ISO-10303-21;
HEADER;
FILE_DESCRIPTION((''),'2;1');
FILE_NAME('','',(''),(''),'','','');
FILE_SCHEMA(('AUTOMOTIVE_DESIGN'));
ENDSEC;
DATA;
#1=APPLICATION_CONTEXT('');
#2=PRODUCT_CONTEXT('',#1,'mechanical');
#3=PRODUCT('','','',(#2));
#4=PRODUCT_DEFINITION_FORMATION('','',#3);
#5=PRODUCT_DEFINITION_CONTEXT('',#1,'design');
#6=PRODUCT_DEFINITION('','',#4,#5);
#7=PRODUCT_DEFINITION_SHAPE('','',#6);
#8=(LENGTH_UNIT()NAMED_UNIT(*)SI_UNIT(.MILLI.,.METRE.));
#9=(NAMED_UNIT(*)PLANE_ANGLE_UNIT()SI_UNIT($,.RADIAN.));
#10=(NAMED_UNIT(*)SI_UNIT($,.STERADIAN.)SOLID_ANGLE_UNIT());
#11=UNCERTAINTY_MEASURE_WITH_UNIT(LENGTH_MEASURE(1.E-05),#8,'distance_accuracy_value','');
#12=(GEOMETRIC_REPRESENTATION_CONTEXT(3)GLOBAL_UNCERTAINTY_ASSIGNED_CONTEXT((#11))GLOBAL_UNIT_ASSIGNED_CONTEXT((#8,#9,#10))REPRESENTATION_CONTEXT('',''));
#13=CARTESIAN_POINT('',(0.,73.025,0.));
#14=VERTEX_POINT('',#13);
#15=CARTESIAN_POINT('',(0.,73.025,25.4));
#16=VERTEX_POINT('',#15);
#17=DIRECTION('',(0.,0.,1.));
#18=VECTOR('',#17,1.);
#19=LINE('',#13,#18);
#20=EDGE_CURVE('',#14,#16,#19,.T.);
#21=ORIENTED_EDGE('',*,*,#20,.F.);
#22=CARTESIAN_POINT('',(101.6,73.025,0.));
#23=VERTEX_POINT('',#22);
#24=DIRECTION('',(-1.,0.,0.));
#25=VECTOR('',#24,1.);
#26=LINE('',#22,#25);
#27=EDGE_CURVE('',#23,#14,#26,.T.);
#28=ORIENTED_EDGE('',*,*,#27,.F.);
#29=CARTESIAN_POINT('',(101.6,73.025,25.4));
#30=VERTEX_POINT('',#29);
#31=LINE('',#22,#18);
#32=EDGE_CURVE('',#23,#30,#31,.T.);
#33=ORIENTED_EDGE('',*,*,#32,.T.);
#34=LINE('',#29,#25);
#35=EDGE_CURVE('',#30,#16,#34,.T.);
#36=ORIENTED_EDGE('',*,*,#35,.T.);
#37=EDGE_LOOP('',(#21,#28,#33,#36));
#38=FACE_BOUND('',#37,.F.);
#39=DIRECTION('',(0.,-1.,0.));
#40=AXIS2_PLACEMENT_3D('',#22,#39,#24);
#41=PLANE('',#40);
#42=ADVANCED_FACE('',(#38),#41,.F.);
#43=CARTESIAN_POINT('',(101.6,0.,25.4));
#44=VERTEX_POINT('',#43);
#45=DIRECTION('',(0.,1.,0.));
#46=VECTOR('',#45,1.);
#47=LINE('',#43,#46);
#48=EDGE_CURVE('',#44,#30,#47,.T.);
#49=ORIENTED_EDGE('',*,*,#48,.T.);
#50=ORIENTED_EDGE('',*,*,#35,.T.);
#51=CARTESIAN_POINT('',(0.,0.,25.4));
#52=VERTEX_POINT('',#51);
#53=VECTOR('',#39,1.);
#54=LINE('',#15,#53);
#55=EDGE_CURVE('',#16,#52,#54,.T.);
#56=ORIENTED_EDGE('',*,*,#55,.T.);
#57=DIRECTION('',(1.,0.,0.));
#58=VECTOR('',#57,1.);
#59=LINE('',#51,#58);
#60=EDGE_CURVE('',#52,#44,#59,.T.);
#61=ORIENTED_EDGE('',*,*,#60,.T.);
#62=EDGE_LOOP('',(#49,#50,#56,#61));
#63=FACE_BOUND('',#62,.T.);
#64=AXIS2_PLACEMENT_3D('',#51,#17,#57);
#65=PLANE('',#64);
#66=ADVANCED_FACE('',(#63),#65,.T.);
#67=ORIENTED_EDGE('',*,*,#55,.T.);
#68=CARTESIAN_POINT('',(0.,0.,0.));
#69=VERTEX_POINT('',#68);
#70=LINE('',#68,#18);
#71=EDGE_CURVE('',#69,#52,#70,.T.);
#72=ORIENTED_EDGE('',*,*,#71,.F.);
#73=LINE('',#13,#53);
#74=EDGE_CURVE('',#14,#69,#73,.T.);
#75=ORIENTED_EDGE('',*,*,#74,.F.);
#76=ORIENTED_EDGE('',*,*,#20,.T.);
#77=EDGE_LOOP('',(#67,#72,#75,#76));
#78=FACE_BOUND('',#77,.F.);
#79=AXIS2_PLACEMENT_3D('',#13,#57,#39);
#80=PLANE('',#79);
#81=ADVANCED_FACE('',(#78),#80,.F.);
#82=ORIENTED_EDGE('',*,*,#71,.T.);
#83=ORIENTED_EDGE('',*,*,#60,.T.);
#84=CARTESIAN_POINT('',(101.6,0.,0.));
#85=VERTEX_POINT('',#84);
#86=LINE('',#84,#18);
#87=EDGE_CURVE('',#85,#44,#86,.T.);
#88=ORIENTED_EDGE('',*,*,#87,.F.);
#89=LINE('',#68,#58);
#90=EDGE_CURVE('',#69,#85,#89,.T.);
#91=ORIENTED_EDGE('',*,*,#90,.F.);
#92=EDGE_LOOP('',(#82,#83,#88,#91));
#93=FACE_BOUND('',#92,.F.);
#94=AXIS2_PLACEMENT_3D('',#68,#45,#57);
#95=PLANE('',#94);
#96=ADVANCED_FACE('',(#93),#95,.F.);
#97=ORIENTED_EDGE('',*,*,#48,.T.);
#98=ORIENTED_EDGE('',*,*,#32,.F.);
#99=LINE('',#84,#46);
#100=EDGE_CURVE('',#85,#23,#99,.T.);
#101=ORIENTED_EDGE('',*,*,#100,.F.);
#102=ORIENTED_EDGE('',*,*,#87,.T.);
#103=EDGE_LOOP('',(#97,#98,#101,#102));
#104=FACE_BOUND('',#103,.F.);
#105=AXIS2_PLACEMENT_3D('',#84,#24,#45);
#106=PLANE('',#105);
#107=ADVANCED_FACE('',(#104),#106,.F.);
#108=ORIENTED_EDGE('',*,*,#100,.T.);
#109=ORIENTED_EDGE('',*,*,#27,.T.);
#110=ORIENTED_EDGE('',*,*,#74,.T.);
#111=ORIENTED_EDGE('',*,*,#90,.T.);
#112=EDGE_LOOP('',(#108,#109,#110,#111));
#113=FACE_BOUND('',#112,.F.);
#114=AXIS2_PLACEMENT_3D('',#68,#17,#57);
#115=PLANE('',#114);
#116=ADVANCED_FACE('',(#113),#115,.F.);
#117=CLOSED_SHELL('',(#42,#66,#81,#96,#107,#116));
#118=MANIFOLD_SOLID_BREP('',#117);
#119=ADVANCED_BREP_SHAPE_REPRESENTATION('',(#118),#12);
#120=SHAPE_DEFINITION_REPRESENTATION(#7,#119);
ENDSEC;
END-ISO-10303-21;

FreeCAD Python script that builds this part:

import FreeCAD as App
import Part
import Sketcher
Q = App.Units.Quantity


def add_polygon(sketch, points):
    """Adds a closed chain of lines whose ends are joined by coincident constraints."""
    first, n = sketch.GeometryCount, len(points)
    for a, b in zip(points, points[1:] + points[:1]):
        sketch.addGeometry(Part.LineSegment(App.Vector(*a, 0), App.Vector(*b, 0)), False)
    for i in range(n):
        sketch.addConstraint(Sketcher.Constraint("Coincident", first + i, 2, first + (i + 1) % n, 1))

doc = App.newDocument("Part")
params = doc.addObject("Spreadsheet::Sheet", "Params")
for row, (alias, value) in enumerate([
    ("sketch1_width", "4 in"),
    ("sketch1_height", "2.875 in"),
    ("pad1_length", "1 in"),
], start=1):
    params.set(f"A{row}", alias)
    params.set(f"B{row}", "=" + value)
    params.setAlias(f"B{row}", alias)

body = doc.addObject("PartDesign::Body", "Body")

# Sketch on XY plane
sketch1 = body.newObject("Sketcher::SketchObject", "Sketch")
sketch1.AttachmentSupport = (doc.getObject("XY_Plane"), [""])
sketch1.MapMode = "FlatFace"
add_polygon(sketch1, [(0, 73.025), (0, 0), (101.6, 0), (101.6, 73.025)])  # lines 0-3
sketch1.addConstraint(Sketcher.Constraint("Vertical", 0))
sketch1.addConstraint(Sketcher.Constraint("Horizontal", 1))
sketch1.addConstraint(Sketcher.Constraint("Vertical", 2))
sketch1.addConstraint(Sketcher.Constraint("Horizontal", 3))
sketch1.addConstraint(Sketcher.Constraint("Coincident", 0, 2, -1, 1))
sketch1.addConstraint(Sketcher.Constraint("DistanceX", 1, 1, 1, 2, Q("4 in")))
sketch1.addConstraint(Sketcher.Constraint("DistanceY", 0, 2, 0, 1, Q("2.875 in")))
sketch1.setExpression("Constraints[9]", "Params.sketch1_width")
sketch1.setExpression("Constraints[10]", "Params.sketch1_height")
pad1 = body.newObject("PartDesign::Pad", "Pad")
pad1.Profile = sketch1
pad1.setExpression("Length", "Params.pad1_length")

doc.recompute()
